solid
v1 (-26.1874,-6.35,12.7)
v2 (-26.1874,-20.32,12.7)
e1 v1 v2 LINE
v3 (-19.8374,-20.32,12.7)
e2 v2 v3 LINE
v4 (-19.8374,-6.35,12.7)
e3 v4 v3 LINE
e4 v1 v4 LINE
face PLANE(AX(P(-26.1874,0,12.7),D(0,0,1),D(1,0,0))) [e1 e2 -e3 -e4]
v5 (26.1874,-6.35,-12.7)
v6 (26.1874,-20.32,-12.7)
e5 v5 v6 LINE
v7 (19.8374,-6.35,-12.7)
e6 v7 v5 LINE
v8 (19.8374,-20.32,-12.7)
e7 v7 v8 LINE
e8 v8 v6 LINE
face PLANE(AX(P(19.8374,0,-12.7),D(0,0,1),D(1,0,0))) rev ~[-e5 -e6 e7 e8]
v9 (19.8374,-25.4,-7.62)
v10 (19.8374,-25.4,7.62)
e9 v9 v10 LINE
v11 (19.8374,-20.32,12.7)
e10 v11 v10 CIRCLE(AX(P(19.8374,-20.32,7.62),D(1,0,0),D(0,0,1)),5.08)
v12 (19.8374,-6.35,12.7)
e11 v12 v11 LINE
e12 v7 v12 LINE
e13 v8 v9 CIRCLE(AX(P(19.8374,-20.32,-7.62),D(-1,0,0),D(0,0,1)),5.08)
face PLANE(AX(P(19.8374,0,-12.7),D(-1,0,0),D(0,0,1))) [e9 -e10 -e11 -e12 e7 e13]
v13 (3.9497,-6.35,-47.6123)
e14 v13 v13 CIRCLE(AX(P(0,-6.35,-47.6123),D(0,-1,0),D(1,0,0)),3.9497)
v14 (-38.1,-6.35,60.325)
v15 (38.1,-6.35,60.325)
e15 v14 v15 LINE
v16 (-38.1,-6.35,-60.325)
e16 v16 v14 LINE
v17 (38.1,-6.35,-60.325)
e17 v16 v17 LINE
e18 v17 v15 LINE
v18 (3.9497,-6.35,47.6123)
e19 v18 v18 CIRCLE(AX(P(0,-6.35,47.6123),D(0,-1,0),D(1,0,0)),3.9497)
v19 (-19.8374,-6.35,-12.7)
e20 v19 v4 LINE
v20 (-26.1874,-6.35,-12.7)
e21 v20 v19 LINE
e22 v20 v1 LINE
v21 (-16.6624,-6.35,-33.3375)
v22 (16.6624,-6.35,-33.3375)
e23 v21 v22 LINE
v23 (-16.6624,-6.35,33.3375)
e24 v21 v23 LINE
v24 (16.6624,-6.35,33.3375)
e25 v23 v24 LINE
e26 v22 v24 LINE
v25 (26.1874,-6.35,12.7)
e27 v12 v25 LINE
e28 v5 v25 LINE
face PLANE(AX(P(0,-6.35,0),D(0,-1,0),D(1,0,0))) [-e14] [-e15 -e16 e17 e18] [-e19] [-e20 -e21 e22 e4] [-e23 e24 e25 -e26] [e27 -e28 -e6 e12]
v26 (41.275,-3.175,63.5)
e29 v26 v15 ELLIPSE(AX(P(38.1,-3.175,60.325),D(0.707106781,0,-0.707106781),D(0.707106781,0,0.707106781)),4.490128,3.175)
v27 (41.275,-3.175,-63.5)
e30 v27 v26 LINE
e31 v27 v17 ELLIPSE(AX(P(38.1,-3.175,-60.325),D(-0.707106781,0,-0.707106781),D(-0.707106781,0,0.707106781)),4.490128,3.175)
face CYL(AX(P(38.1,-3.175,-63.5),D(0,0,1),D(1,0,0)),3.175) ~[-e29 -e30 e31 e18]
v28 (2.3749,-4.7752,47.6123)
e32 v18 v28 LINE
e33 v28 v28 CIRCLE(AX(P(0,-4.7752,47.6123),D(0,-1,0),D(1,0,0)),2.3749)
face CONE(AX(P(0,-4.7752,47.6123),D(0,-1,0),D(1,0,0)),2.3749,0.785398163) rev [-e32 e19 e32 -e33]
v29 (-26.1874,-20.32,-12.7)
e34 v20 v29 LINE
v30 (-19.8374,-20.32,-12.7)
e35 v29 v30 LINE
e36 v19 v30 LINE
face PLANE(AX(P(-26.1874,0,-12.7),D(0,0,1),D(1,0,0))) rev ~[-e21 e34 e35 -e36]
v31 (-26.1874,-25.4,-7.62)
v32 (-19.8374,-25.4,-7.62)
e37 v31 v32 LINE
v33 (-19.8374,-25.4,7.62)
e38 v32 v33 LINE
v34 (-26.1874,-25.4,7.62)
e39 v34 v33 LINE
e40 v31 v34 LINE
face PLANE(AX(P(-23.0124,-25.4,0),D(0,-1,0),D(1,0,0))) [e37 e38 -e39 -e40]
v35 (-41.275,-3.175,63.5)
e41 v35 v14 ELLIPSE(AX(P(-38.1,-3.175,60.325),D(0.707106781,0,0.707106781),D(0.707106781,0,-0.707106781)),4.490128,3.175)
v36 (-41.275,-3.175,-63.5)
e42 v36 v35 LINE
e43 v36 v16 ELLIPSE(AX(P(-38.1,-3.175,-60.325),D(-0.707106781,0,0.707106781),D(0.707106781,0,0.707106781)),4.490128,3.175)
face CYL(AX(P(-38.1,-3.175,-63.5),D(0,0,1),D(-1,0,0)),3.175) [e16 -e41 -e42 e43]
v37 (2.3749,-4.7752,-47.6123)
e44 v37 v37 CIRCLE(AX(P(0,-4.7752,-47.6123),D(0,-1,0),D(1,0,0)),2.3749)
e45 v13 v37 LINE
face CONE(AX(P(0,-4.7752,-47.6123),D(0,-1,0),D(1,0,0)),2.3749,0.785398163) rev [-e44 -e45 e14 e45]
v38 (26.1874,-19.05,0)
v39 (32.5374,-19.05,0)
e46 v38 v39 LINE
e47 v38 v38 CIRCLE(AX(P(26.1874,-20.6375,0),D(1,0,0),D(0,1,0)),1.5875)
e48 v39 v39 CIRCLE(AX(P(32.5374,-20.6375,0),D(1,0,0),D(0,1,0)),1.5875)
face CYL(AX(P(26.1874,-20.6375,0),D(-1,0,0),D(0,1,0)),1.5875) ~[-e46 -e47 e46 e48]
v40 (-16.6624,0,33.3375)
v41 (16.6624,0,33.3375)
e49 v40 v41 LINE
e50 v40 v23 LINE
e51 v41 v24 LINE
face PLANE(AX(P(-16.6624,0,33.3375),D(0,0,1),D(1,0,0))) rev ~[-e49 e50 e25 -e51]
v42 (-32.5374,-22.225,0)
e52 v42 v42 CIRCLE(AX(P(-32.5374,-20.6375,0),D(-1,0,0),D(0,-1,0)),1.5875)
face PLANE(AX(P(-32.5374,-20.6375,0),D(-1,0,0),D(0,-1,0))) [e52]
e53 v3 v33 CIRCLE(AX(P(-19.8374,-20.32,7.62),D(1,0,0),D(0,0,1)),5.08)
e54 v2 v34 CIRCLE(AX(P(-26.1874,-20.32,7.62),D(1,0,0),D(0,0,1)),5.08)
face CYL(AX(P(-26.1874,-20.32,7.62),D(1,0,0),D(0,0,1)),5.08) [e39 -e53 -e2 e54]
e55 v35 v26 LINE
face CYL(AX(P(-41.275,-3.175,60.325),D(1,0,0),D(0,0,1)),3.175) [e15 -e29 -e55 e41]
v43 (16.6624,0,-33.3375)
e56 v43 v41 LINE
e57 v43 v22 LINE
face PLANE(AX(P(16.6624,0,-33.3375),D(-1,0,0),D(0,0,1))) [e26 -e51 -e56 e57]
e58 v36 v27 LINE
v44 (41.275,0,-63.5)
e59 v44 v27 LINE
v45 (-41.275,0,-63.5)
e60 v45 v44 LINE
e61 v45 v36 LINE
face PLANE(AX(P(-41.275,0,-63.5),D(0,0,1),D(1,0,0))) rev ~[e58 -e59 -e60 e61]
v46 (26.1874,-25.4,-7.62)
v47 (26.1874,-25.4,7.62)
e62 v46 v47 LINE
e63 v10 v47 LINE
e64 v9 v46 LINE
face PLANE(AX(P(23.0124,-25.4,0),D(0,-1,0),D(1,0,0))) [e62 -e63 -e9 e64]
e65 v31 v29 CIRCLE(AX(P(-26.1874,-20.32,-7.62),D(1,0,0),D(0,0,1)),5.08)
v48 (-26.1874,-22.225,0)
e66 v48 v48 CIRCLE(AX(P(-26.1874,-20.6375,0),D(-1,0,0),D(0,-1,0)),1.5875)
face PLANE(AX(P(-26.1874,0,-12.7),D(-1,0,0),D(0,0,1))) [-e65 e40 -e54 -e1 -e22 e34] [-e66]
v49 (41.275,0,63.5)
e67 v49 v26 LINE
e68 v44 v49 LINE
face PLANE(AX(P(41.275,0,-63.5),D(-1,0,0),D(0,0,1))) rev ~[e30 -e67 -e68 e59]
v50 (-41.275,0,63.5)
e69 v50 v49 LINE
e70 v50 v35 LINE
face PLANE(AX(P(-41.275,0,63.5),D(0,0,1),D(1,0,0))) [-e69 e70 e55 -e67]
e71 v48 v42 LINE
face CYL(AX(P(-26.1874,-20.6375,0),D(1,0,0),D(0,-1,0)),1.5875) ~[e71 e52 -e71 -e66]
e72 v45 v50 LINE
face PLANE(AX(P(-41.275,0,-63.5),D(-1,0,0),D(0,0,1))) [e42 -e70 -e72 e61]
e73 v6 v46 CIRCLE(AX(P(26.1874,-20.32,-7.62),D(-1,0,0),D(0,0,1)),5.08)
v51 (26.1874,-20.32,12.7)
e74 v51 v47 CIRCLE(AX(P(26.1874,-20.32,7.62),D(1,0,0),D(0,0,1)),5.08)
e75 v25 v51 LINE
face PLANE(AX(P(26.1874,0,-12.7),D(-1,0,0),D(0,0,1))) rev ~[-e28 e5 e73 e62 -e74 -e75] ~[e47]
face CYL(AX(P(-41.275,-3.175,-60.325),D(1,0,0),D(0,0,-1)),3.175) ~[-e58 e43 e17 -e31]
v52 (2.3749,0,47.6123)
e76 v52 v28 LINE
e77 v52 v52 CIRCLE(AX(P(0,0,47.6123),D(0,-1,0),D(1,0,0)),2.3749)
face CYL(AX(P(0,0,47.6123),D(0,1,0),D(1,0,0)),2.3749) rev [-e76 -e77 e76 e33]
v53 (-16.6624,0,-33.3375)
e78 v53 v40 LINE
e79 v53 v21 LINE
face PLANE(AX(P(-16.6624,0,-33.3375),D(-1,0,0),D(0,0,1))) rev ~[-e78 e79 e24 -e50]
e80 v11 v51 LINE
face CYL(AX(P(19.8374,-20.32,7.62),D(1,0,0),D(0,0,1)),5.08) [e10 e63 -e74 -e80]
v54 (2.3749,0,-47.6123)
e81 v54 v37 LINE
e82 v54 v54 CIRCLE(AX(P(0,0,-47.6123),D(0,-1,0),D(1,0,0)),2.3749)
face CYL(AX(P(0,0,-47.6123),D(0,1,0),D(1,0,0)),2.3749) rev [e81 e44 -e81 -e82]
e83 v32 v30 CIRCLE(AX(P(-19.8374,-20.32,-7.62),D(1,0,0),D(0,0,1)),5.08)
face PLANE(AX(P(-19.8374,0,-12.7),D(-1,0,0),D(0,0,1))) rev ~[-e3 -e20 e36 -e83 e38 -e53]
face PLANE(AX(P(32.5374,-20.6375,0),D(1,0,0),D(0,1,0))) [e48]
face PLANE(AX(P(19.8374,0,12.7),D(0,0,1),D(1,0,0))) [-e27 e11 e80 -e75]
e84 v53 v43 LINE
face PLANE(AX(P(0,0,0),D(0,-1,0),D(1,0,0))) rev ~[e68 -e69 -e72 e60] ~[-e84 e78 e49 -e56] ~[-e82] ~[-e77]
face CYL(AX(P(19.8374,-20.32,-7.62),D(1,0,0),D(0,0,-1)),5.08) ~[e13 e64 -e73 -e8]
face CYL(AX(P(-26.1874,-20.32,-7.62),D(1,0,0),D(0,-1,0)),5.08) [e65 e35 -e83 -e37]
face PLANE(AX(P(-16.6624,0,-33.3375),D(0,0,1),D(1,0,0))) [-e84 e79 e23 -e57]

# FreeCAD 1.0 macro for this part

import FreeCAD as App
import Part
import Sketcher

V = App.Vector
Q = App.Units.Quantity


def edges_at(feature, points):
    """Names of the edges that pass closest to the given points."""
    edges = feature.Shape.Edges
    near = lambda p: min(range(len(edges)), key=lambda i: edges[i].distToShape(Part.Vertex(*p))[0])
    return sorted({f"Edge{near(p) + 1}" for p in points})

doc = App.newDocument("Part")
params = doc.addObject("Spreadsheet::Sheet", "Params")
for row, (alias, value) in enumerate([
    ("sketch1_height", "5 in"),
    ("sketch1_height2", "1 in"),
    ("sketch1_diameter", "0.187 in"),
    ("sketch1_width", "3.25 in"),
    ("sketch1_width2", "0.25 in"),
    ("pad1_length", "0.25 in"),
    ("fillet_radius", "0.125 in"),
    ("chamfer_size", "0.062 in"),
    ("chamfer2_size", "0.062 in"),
    ("sketch2_height", "1 in"),
    ("sketch2_width", "0.25 in"),
    ("pad2_length", "1 in"),
    ("sketch3_height", "1 in"),
    ("sketch3_width", "0.25 in"),
    ("pad3_length", "1 in"),
    ("fillet2_radius", "0.2 in"),
    ("fillet3_radius", "0.2 in"),
    ("fillet4_radius", "0.2 in"),
    ("sketch4_diameter", "0.125 in"),
    ("pad4_length", "0.25 in"),
    ("sketch5_diameter", "0.125 in"),
    ("pad5_length", "0.25 in"),
], start=1):
    params.set(f"A{row}", alias)
    params.set(f"B{row}", "=" + value)
    params.setAlias(f"B{row}", alias)

body = doc.addObject("PartDesign::Body", "Body")

# Sketch on XZ plane
sketch1 = body.newObject("Sketcher::SketchObject", "Sketch")
sketch1.AttachmentSupport = (doc.getObject("XZ_Plane"), [""])
sketch1.MapMode = "FlatFace"
sketch1.addGeometry(Part.LineSegment(V(-41.3, 63.5, 0), V(-41.3, -63.5, 0)), False)
sketch1.addGeometry(Part.LineSegment(V(-41.3, -63.5, 0), V(41.3, -63.5, 0)), False)
sketch1.addGeometry(Part.LineSegment(V(41.3, -63.5, 0), V(41.3, 63.5, 0)), False)
sketch1.addGeometry(Part.LineSegment(V(41.3, 63.5, 0), V(-41.3, 63.5, 0)), False)
sketch1.addGeometry(Part.Circle(V(0, -47.6, 0), V(0, 0, 1), 2.4), False)
sketch1.addGeometry(Part.LineSegment(V(-19.8, -12.7, 0), V(-26.2, -12.7, 0)), False)
sketch1.addGeometry(Part.LineSegment(V(-26.2, -12.7, 0), V(-26.2, 12.7, 0)), False)
sketch1.addGeometry(Part.LineSegment(V(-26.2, 12.7, 0), V(-19.8, 12.7, 0)), False)
sketch1.addGeometry(Part.LineSegment(V(-19.8, 12.7, 0), V(-19.8, -12.7, 0)), False)
sketch1.addGeometry(Part.LineSegment(V(16.7, -33.3, 0), V(-16.7, -33.3, 0)), False)
sketch1.addGeometry(Part.LineSegment(V(-16.7, -33.3, 0), V(-16.7, 33.3, 0)), False)
sketch1.addGeometry(Part.LineSegment(V(-16.7, 33.3, 0), V(16.7, 33.3, 0)), False)
sketch1.addGeometry(Part.LineSegment(V(16.7, 33.3, 0), V(16.7, -33.3, 0)), False)
sketch1.addGeometry(Part.LineSegment(V(26.2, -12.7, 0), V(19.8, -12.7, 0)), False)
sketch1.addGeometry(Part.LineSegment(V(19.8, -12.7, 0), V(19.8, 12.7, 0)), False)
sketch1.addGeometry(Part.LineSegment(V(19.8, 12.7, 0), V(26.2, 12.7, 0)), False)
sketch1.addGeometry(Part.LineSegment(V(26.2, 12.7, 0), V(26.2, -12.7, 0)), False)
sketch1.addGeometry(Part.Circle(V(0, 47.6, 0), V(0, 0, 1), 2.4), False)
sketch1.addConstraint(Sketcher.Constraint("Coincident", 0, 2, 1, 1))
sketch1.addConstraint(Sketcher.Constraint("Coincident", 1, 2, 2, 1))
sketch1.addConstraint(Sketcher.Constraint("Coincident", 2, 2, 3, 1))
sketch1.addConstraint(Sketcher.Constraint("Coincident", 3, 2, 0, 1))
sketch1.addConstraint(Sketcher.Constraint("Coincident", 5, 2, 6, 1))
sketch1.addConstraint(Sketcher.Constraint("Coincident", 6, 2, 7, 1))
sketch1.addConstraint(Sketcher.Constraint("Coincident", 7, 2, 8, 1))
sketch1.addConstraint(Sketcher.Constraint("Coincident", 8, 2, 5, 1))
sketch1.addConstraint(Sketcher.Constraint("Coincident", 9, 2, 10, 1))
sketch1.addConstraint(Sketcher.Constraint("Coincident", 10, 2, 11, 1))
sketch1.addConstraint(Sketcher.Constraint("Coincident", 11, 2, 12, 1))
sketch1.addConstraint(Sketcher.Constraint("Coincident", 12, 2, 9, 1))
sketch1.addConstraint(Sketcher.Constraint("Coincident", 13, 2, 14, 1))
sketch1.addConstraint(Sketcher.Constraint("Coincident", 14, 2, 15, 1))
sketch1.addConstraint(Sketcher.Constraint("Coincident", 15, 2, 16, 1))
sketch1.addConstraint(Sketcher.Constraint("Coincident", 16, 2, 13, 1))
sketch1.addConstraint(Sketcher.Constraint("Vertical", 0))
sketch1.addConstraint(Sketcher.Constraint("Horizontal", 1))
sketch1.addConstraint(Sketcher.Constraint("Vertical", 2))
sketch1.addConstraint(Sketcher.Constraint("Horizontal", 3))
sketch1.addConstraint(Sketcher.Constraint("Horizontal", 5))
sketch1.addConstraint(Sketcher.Constraint("Vertical", 6))
sketch1.addConstraint(Sketcher.Constraint("Horizontal", 7))
sketch1.addConstraint(Sketcher.Constraint("Vertical", 8))
sketch1.addConstraint(Sketcher.Constraint("Horizontal", 9))
sketch1.addConstraint(Sketcher.Constraint("Vertical", 10))
sketch1.addConstraint(Sketcher.Constraint("Horizontal", 11))
sketch1.addConstraint(Sketcher.Constraint("Vertical", 12))
sketch1.addConstraint(Sketcher.Constraint("Horizontal", 13))
sketch1.addConstraint(Sketcher.Constraint("Vertical", 14))
sketch1.addConstraint(Sketcher.Constraint("Horizontal", 15))
sketch1.addConstraint(Sketcher.Constraint("Vertical", 16))
sketch1.addConstraint(Sketcher.Constraint("Equal", 4, 17))
sketch1.addConstraint(Sketcher.Constraint("Symmetric", 4, 3, 17, 3, -1, 1))
sketch1.addConstraint(Sketcher.Constraint("Symmetric", 0, 2, 2, 2, -1, 1))
sketch1.addConstraint(Sketcher.Constraint("Symmetric", 9, 2, 11, 2, -1, 1))
sketch1.addConstraint(Sketcher.Constraint("Symmetric", 7, 2, 13, 2, -1, 1))
sketch1.addConstraint(Sketcher.Constraint("Symmetric", 5, 2, 15, 2, -1, 1))
sketch1.addConstraint(Sketcher.Constraint("PointOnObject", 4, 3, -2))
sketch1.addConstraint(Sketcher.Constraint("Horizontal", 8, 2, 13, 2))
sketch1.addConstraint(Sketcher.Constraint("DistanceY", 0, 2, 0, 1, Q("5 in")))
sketch1.addConstraint(Sketcher.Constraint("DistanceY", 6, 1, 6, 2, Q("1 in")))
sketch1.addConstraint(Sketcher.Constraint("Diameter", 4, Q("0.187 in")))
sketch1.addConstraint(Sketcher.Constraint("DistanceX", 1, 1, 1, 2, Q("3.25 in")))
sketch1.addConstraint(Sketcher.Constraint("DistanceX", 5, 2, 5, 1, Q("0.25 in")))
sketch1.addConstraint(Sketcher.Constraint("DistanceX", 9, 2, 9, 1, Q("1.312 in")))
sketch1.addConstraint(Sketcher.Constraint("DistanceY", 10, 1, 10, 2, Q("2.625 in")))
sketch1.addConstraint(Sketcher.Constraint("DistanceX", 5, 2, -1, 1, Q("1.031 in")))
sketch1.addConstraint(Sketcher.Constraint("DistanceY", 4, 3, 17, 3, Q("3.749 in")))
sketch1.setExpression("Constraints[40]", "Params.sketch1_height")
sketch1.setExpression("Constraints[41]", "Params.sketch1_height2")
sketch1.setExpression("Constraints[42]", "Params.sketch1_diameter")
sketch1.setExpression("Constraints[43]", "Params.sketch1_width")
sketch1.setExpression("Constraints[44]", "Params.sketch1_width2")
pad1 = body.newObject("PartDesign::Pad", "Pad")
pad1.Profile = sketch1
pad1.setExpression("Length", "Params.pad1_length")
doc.recompute()

fillet = body.newObject("PartDesign::Fillet", "Fillet")
fillet.Base = (pad1, edges_at(pad1, [
    (0, -6.35, 63.5),
    (41.275, -6.35, 0),
    (0, -6.35, -63.5),
    (-41.275, -6.35, 0),
]))
fillet.setExpression("Radius", "Params.fillet_radius")
doc.recompute()

chamfer = body.newObject("PartDesign::Chamfer", "Chamfer")
chamfer.Base = (fillet, edges_at(fillet, [(-2.375, -6.35, 47.612)]))
chamfer.setExpression("Size", "Params.chamfer_size")
doc.recompute()

chamfer2 = body.newObject("PartDesign::Chamfer", "Chamfer001")
chamfer2.Base = (chamfer, edges_at(chamfer, [(-2.375, -6.35, -47.612)]))
chamfer2.setExpression("Size", "Params.chamfer2_size")

# Sketch on XZ plane
sketch2 = body.newObject("Sketcher::SketchObject", "Sketch001")
sketch2.AttachmentSupport = (doc.getObject("XZ_Plane"), [""])
sketch2.MapMode = "FlatFace"
sketch2.addGeometry(Part.LineSegment(V(-26, 13, 0), V(-26, -13, 0)), False)
sketch2.addGeometry(Part.LineSegment(V(-26, -13, 0), V(-20, -13, 0)), False)
sketch2.addGeometry(Part.LineSegment(V(-20, -13, 0), V(-20, 13, 0)), False)
sketch2.addGeometry(Part.LineSegment(V(-20, 13, 0), V(-26, 13, 0)), False)
sketch2.addConstraint(Sketcher.Constraint("Coincident", 0, 2, 1, 1))
sketch2.addConstraint(Sketcher.Constraint("Coincident", 1, 2, 2, 1))
sketch2.addConstraint(Sketcher.Constraint("Coincident", 2, 2, 3, 1))
sketch2.addConstraint(Sketcher.Constraint("Coincident", 3, 2, 0, 1))
sketch2.addConstraint(Sketcher.Constraint("Vertical", 0))
sketch2.addConstraint(Sketcher.Constraint("Horizontal", 1))
sketch2.addConstraint(Sketcher.Constraint("Vertical", 2))
sketch2.addConstraint(Sketcher.Constraint("Horizontal", 3))
sketch2.addConstraint(Sketcher.Constraint("DistanceY", 0, 2, 0, 1, Q("1 in")))
sketch2.addConstraint(Sketcher.Constraint("DistanceX", 1, 1, 1, 2, Q("0.25 in")))
sketch2.addConstraint(Sketcher.Constraint("DistanceY", 0, 2, -1, 1, Q("0.5 in")))
sketch2.addConstraint(Sketcher.Constraint("DistanceX", 0, 2, -1, 1, Q("1.031 in")))
sketch2.setExpression("Constraints[8]", "Params.sketch2_height")
sketch2.setExpression("Constraints[9]", "Params.sketch2_width")
pad2 = body.newObject("PartDesign::Pad", "Pad001")
pad2.Profile = sketch2
pad2.setExpression("Length", "Params.pad2_length")

# Sketch on XZ plane
sketch3 = body.newObject("Sketcher::SketchObject", "Sketch002")
sketch3.AttachmentSupport = (doc.getObject("XZ_Plane"), [""])
sketch3.MapMode = "FlatFace"
sketch3.addGeometry(Part.LineSegment(V(20, 13, 0), V(20, -13, 0)), False)
sketch3.addGeometry(Part.LineSegment(V(20, -13, 0), V(26, -13, 0)), False)
sketch3.addGeometry(Part.LineSegment(V(26, -13, 0), V(26, 13, 0)), False)
sketch3.addGeometry(Part.LineSegment(V(26, 13, 0), V(20, 13, 0)), False)
sketch3.addConstraint(Sketcher.Constraint("Coincident", 0, 2, 1, 1))
sketch3.addConstraint(Sketcher.Constraint("Coincident", 1, 2, 2, 1))
sketch3.addConstraint(Sketcher.Constraint("Coincident", 2, 2, 3, 1))
sketch3.addConstraint(Sketcher.Constraint("Coincident", 3, 2, 0, 1))
sketch3.addConstraint(Sketcher.Constraint("Vertical", 0))
sketch3.addConstraint(Sketcher.Constraint("Horizontal", 1))
sketch3.addConstraint(Sketcher.Constraint("Vertical", 2))
sketch3.addConstraint(Sketcher.Constraint("Horizontal", 3))
sketch3.addConstraint(Sketcher.Constraint("DistanceY", 0, 2, 0, 1, Q("1 in")))
sketch3.addConstraint(Sketcher.Constraint("DistanceX", 1, 1, 1, 2, Q("0.25 in")))
sketch3.addConstraint(Sketcher.Constraint("DistanceY", 0, 2, -1, 1, Q("0.5 in")))
sketch3.addConstraint(Sketcher.Constraint("DistanceX", -1, 1, 0, 2, Q("0.781 in")))
sketch3.setExpression("Constraints[8]", "Params.sketch3_height")
sketch3.setExpression("Constraints[9]", "Params.sketch3_width")
pad3 = body.newObject("PartDesign::Pad", "Pad002")
pad3.Profile = sketch3
pad3.setExpression("Length", "Params.pad3_length")
doc.recompute()

fillet2 = body.newObject("PartDesign::Fillet", "Fillet001")
fillet2.Base = (pad3, edges_at(pad3, [(-23.012, -25.4, 12.7)]))
fillet2.setExpression("Radius", "Params.fillet2_radius")
doc.recompute()

fillet3 = body.newObject("PartDesign::Fillet", "Fillet002")
fillet3.Base = (fillet2, edges_at(fillet2, [(23.012, -25.4, 12.7), (-23.012, -25.4, -12.7)]))
fillet3.setExpression("Radius", "Params.fillet3_radius")
doc.recompute()

fillet4 = body.newObject("PartDesign::Fillet", "Fillet003")
fillet4.Base = (fillet3, edges_at(fillet3, [(23.012, -25.4, -12.7)]))
fillet4.setExpression("Radius", "Params.fillet4_radius")

# Sketch on YZ plane
sketch4 = body.newObject("Sketcher::SketchObject", "Sketch003")
sketch4.AttachmentSupport = (doc.getObject("YZ_Plane"), [""])
sketch4.MapMode = "FlatFace"
sketch4.AttachmentOffset = App.Placement(V(0, 0, -1.031 * 25.4), App.Rotation())
sketch4.addGeometry(Part.Circle(V(-20.6, 0, 0), V(0, 0, 1), 1.6), False)
sketch4.addConstraint(Sketcher.Constraint("PointOnObject", 0, 3, -1))
sketch4.addConstraint(Sketcher.Constraint("Diameter", 0, Q("0.125 in")))
sketch4.addConstraint(Sketcher.Constraint("DistanceX", 0, 3, -1, 1, Q("0.8125 in")))
sketch4.setExpression("Constraints[1]", "Params.sketch4_diameter")
pad4 = body.newObject("PartDesign::Pad", "Pad003")
pad4.Profile = sketch4
pad4.setExpression("Length", "Params.pad4_length")
pad4.Reversed = True

# Sketch on YZ plane
sketch5 = body.newObject("Sketcher::SketchObject", "Sketch004")
sketch5.AttachmentSupport = (doc.getObject("YZ_Plane"), [""])
sketch5.MapMode = "FlatFace"
sketch5.AttachmentOffset = App.Placement(V(0, 0, 1.031 * 25.4), App.Rotation())
sketch5.addGeometry(Part.Circle(V(-20.6, 0, 0), V(0, 0, 1), 1.6), False)
sketch5.addConstraint(Sketcher.Constraint("PointOnObject", 0, 3, -1))
sketch5.addConstraint(Sketcher.Constraint("Diameter", 0, Q("0.125 in")))
sketch5.addConstraint(Sketcher.Constraint("DistanceX", 0, 3, -1, 1, Q("0.8125 in")))
sketch5.setExpression("Constraints[1]", "Params.sketch5_diameter")
pad5 = body.newObject("PartDesign::Pad", "Pad004")
pad5.Profile = sketch5
pad5.setExpression("Length", "Params.pad5_length")

doc.recompute()
